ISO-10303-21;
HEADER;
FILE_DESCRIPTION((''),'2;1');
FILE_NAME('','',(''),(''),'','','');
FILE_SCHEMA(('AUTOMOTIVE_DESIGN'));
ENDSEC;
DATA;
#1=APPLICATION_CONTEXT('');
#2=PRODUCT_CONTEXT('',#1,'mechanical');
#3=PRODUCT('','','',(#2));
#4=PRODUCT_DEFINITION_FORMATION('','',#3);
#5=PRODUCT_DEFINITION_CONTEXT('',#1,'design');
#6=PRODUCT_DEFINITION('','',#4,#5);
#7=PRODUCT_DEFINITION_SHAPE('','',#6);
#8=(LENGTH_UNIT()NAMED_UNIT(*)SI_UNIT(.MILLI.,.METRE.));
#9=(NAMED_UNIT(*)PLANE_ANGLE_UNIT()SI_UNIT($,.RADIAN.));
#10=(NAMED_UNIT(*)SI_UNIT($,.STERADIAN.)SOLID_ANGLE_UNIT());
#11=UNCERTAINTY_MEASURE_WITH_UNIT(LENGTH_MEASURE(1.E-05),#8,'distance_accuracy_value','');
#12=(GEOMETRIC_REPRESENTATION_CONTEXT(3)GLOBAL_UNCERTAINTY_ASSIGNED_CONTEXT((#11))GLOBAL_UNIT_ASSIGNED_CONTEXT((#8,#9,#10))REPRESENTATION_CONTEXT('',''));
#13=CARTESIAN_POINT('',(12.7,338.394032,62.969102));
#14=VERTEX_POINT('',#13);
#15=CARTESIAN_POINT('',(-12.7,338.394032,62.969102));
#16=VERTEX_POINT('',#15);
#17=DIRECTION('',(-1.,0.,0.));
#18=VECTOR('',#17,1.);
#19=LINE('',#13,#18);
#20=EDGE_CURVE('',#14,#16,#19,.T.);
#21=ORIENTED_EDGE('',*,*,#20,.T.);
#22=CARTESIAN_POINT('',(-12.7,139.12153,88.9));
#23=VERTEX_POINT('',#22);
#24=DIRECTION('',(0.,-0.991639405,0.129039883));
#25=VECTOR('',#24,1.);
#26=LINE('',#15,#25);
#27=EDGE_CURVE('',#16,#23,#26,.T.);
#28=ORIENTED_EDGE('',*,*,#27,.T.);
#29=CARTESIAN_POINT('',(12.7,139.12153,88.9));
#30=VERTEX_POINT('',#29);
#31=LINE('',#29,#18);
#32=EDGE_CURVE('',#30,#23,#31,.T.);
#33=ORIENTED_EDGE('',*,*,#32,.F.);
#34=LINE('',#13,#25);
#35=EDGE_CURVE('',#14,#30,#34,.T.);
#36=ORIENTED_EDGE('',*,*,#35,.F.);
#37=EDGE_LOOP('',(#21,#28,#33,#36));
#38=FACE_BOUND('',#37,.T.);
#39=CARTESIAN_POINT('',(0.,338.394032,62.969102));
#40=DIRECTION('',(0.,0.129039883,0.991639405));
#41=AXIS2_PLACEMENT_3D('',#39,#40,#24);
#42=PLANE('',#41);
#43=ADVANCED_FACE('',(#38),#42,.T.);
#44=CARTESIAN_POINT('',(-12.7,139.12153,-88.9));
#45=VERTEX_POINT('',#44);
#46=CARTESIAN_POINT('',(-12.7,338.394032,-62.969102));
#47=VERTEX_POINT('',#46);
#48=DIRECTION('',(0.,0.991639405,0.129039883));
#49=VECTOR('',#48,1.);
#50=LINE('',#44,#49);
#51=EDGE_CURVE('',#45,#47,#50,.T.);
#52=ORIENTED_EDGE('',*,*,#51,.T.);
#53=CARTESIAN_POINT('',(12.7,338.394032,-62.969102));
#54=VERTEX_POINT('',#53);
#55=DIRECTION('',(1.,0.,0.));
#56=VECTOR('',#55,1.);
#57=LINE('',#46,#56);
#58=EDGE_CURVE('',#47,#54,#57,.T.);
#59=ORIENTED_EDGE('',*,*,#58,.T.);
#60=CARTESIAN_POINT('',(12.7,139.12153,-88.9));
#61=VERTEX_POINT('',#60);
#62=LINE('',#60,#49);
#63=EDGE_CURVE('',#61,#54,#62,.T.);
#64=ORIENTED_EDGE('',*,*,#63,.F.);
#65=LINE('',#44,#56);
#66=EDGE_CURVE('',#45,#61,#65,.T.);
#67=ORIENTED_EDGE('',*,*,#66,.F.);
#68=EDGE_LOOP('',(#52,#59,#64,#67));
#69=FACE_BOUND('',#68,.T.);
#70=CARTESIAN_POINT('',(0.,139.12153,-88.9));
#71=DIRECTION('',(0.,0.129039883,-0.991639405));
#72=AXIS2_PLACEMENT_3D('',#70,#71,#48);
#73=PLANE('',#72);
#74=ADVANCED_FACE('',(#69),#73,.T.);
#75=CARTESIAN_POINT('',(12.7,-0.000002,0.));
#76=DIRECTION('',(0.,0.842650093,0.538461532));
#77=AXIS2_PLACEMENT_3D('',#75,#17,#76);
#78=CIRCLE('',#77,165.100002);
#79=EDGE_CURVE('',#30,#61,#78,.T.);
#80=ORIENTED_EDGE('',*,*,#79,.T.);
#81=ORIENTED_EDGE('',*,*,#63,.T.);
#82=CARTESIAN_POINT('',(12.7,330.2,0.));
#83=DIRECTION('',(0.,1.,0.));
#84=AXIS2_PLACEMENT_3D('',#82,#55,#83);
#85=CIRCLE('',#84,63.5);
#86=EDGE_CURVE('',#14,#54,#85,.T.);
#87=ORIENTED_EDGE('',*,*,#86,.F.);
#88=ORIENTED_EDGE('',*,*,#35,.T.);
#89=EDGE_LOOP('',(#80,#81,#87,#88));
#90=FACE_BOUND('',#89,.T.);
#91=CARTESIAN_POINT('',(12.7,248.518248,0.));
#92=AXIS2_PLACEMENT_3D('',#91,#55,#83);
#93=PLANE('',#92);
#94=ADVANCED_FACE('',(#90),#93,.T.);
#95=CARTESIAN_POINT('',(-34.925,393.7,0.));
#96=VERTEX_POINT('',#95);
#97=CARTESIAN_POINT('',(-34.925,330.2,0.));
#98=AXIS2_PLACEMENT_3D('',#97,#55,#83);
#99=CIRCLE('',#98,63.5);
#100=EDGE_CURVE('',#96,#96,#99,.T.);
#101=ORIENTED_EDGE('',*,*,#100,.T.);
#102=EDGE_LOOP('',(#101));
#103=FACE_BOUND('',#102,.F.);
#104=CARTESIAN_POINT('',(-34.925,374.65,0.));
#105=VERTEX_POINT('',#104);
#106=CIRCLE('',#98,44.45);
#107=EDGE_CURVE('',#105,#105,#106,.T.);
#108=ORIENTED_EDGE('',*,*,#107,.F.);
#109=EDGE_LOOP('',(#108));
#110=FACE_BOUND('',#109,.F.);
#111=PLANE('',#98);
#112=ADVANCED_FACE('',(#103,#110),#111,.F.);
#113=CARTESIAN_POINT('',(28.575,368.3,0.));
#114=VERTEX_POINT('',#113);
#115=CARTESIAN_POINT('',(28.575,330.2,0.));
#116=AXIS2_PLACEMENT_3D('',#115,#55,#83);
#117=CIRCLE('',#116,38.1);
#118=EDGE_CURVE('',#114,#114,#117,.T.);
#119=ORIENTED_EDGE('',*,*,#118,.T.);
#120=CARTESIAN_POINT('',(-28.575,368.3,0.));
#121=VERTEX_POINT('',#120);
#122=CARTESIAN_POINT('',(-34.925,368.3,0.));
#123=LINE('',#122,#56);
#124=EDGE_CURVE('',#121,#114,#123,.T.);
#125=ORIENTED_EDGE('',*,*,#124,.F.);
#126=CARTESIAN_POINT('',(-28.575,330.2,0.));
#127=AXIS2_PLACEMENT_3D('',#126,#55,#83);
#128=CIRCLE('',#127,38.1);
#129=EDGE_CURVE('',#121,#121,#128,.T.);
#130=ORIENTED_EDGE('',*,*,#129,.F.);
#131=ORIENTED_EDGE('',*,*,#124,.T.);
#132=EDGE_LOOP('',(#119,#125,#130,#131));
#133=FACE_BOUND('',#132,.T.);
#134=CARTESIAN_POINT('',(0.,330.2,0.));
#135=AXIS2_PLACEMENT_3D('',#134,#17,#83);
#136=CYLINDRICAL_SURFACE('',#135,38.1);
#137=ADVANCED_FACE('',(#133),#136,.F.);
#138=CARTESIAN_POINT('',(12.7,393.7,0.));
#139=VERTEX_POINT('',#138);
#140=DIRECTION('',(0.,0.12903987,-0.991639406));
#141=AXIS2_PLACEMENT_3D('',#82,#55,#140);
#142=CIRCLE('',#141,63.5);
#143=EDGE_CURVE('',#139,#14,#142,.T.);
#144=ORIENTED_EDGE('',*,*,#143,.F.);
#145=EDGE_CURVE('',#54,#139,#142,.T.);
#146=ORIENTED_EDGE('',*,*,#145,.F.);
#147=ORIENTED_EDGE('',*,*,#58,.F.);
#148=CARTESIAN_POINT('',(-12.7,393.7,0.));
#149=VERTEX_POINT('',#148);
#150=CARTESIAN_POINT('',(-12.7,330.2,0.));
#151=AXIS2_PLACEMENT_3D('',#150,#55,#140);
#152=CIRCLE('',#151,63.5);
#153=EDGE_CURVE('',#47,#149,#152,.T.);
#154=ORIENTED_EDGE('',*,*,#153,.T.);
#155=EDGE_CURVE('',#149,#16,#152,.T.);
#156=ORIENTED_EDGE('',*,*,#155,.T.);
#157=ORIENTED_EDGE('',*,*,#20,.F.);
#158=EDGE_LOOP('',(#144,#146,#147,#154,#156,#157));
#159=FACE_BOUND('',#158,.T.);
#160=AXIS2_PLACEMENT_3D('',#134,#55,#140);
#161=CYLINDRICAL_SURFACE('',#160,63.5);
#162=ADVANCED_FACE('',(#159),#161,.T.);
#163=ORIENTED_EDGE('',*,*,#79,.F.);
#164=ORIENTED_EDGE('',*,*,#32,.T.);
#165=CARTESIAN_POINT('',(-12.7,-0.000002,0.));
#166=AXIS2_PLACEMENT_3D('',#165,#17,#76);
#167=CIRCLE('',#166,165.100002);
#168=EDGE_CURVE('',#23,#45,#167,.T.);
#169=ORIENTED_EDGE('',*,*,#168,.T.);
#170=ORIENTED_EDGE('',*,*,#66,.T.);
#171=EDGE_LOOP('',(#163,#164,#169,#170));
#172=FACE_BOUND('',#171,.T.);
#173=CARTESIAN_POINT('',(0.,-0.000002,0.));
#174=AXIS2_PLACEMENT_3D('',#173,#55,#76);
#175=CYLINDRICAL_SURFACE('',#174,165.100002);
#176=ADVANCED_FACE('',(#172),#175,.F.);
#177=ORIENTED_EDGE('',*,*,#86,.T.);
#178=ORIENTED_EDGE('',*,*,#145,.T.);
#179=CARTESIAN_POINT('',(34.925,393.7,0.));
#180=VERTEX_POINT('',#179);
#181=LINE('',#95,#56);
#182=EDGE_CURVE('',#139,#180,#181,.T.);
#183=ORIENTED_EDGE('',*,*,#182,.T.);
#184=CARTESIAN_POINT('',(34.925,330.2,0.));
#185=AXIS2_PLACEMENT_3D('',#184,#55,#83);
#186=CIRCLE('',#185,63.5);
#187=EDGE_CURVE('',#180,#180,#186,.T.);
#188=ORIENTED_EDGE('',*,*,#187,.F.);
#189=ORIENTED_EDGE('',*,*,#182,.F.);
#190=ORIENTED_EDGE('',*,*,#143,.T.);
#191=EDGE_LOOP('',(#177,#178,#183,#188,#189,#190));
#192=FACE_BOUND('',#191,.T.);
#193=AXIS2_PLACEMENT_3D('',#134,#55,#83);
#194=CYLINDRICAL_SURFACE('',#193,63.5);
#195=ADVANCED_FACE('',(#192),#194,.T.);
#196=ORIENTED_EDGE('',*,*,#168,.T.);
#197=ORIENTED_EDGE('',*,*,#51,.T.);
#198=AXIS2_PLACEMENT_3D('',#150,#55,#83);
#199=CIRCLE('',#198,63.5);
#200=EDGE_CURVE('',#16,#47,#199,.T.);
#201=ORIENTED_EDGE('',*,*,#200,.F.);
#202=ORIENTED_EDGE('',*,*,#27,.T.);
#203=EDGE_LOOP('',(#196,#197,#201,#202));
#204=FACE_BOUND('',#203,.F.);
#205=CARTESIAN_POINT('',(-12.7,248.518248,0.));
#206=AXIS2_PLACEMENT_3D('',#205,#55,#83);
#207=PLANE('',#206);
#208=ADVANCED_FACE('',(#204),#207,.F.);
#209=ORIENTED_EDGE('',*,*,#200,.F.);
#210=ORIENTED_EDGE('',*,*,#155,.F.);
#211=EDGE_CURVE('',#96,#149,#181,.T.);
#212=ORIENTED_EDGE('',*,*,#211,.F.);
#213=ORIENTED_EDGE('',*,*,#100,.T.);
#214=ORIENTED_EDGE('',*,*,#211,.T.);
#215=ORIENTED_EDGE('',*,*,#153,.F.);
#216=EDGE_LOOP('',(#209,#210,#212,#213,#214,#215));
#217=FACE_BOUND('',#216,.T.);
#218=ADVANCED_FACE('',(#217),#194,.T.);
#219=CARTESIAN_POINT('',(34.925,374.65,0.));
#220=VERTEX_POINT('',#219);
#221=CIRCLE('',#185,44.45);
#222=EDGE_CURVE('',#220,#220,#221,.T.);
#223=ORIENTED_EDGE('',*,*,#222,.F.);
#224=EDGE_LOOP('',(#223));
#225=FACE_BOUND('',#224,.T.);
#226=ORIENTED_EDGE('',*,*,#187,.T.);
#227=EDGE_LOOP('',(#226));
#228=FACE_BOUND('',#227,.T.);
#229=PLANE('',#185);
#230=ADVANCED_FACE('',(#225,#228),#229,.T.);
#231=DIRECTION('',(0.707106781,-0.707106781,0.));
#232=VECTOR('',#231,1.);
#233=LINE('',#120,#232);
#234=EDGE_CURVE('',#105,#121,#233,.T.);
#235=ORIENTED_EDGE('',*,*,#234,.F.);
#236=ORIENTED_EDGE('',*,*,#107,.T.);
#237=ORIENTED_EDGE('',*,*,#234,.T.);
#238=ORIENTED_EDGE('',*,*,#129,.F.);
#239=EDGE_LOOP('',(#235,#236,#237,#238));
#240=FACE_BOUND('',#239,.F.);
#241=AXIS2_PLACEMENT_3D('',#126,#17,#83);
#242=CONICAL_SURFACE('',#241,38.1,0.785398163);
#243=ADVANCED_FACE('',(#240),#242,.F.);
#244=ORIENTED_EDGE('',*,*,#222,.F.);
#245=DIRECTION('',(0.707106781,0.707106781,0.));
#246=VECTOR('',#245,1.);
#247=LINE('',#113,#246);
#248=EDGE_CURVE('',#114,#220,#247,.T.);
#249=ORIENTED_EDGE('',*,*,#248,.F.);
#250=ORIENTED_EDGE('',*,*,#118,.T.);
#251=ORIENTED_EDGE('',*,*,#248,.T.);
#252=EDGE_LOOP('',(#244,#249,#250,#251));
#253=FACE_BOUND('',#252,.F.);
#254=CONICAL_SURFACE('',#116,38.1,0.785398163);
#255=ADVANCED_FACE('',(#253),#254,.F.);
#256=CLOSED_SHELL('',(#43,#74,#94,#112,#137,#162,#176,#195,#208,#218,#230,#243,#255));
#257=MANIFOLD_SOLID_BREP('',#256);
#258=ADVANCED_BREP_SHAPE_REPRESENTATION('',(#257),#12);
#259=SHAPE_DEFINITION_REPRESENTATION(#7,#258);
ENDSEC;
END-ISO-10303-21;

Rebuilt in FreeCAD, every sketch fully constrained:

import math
import FreeCAD as App
import Part
import Sketcher

V = App.Vector
Q = App.Units.Quantity


def edges_at(feature, points):
    """Names of the edges that pass closest to the given points."""
    edges = feature.Shape.Edges
    near = lambda p: min(range(len(edges)), key=lambda i: edges[i].distToShape(Part.Vertex(*p))[0])
    return sorted({f"Edge{near(p) + 1}" for p in points})

doc = App.newDocument("Part")
body = doc.addObject("PartDesign::Body", "Body")

# Sketch on YZ plane
sketch1 = doc.addObject("Sketcher::SketchObject", "Sketch")
body.addObject(sketch1)
sketch1.AttachmentSupport = (doc.YZ_Plane, [""])
sketch1.MapMode = "FlatFace"
sketch1.addGeometry([
    Part.ArcOfCircle(Part.Circle(V(0, 0, 0), V(0, 0, 1), 165), math.radians(-33), math.radians(33)),  # 0
    Part.LineSegment(V(139, -89, 0), V(338, -63, 0)),  # 1
    Part.ArcOfCircle(Part.Circle(V(330, 0, 0), V(0, 0, 1), 63), math.radians(-83), math.radians(83)),  # 2
    Part.LineSegment(V(338, 63, 0), V(139, 89, 0)),  # 3
    Part.Circle(V(330, 0, 0), V(0, 0, 1), 38),  # 4
], False)
sketch1.addConstraint([
    Sketcher.Constraint("Coincident", 0, 1, 1, 1),
    Sketcher.Constraint("Tangent", 1, 2, 2, 1),
    Sketcher.Constraint("Tangent", 2, 2, 3, 1),
    Sketcher.Constraint("Coincident", 3, 2, 0, 2),
    Sketcher.Constraint("Coincident", 0, 3, -1, 1),
    Sketcher.Constraint("Coincident", 4, 3, 2, 3),
    Sketcher.Constraint("Symmetric", 1, 2, 2, 2, -1),
    Sketcher.Constraint("Diameter", 4, Q("3 in")),
    Sketcher.Constraint("Radius", 0, Q("6.5000001 in")),
    Sketcher.Constraint("Radius", 2, Q("2.5 in")),
    Sketcher.Constraint("DistanceX", -1, 1, 2, 3, Q("13 in")),
    Sketcher.Constraint("DistanceY", 0, 1, 3, 2, Q("7 in")),
])
pad1 = doc.addObject("PartDesign::Pad", "Pad")
body.addObject(pad1)
pad1.Profile = sketch1
pad1.Length = Q("1 in")
pad1.Midplane = True

# Sketch on YZ plane
sketch2 = doc.addObject("Sketcher::SketchObject", "Sketch001")
body.addObject(sketch2)
sketch2.AttachmentSupport = (doc.YZ_Plane, [""])
sketch2.MapMode = "FlatFace"
sketch2.addGeometry([
    Part.Circle(V(330, 0, 0), V(0, 0, 1), 64),
    Part.Circle(V(330, 0, 0), V(0, 0, 1), 38),
], False)
sketch2.addConstraint([
    Sketcher.Constraint("Coincident", 1, 3, 0, 3),
    Sketcher.Constraint("PointOnObject", 0, 3, -1),
    Sketcher.Constraint("Diameter", 0, Q("5 in")),
    Sketcher.Constraint("Diameter", 1, Q("3 in")),
    Sketcher.Constraint("DistanceX", -1, 1, 0, 3, Q("13 in")),
])
pad2 = doc.addObject("PartDesign::Pad", "Pad001")
body.addObject(pad2)
pad2.Profile = sketch2
pad2.Length = Q("2.75 in")
pad2.Midplane = True
doc.recompute()

chamfer = doc.addObject("PartDesign::Chamfer", "Chamfer")
body.addObject(chamfer)
chamfer.Base = (pad2, edges_at(pad2, [(-34.925, 292.1, 0), (34.925, 292.1, 0)]))
chamfer.Size = Q("0.25 in")

doc.recompute()
